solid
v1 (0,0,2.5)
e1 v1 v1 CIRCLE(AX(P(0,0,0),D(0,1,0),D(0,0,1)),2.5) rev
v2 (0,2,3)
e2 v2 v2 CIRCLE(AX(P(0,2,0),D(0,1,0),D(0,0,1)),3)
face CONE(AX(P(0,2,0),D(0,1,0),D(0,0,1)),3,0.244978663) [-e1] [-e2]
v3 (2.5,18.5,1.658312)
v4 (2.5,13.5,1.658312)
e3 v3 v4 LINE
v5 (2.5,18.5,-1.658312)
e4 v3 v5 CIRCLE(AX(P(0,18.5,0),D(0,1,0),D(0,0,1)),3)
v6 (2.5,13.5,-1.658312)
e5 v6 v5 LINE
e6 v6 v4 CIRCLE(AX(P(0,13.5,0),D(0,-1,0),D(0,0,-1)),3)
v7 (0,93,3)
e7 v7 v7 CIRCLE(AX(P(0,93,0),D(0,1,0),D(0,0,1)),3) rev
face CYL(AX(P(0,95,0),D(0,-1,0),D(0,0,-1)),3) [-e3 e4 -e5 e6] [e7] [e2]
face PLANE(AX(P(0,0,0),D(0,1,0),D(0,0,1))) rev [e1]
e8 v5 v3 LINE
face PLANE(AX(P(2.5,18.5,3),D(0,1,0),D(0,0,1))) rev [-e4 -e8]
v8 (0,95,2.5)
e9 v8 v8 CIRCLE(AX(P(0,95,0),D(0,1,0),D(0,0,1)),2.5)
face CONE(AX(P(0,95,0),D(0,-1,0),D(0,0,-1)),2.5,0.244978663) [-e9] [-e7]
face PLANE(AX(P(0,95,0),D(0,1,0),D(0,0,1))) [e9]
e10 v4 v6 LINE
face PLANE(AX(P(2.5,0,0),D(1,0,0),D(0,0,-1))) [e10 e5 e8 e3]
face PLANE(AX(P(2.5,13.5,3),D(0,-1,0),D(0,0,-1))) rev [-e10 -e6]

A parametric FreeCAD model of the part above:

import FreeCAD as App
import Part
import Sketcher
from FreeCAD import Vector
Q = App.Units.Quantity


def edges_at(feature, points):
    """Names of the edges that pass closest to the given points."""
    edges = feature.Shape.Edges
    near = lambda p: min(range(len(edges)), key=lambda i: edges[i].distToShape(Part.Vertex(*p))[0])
    return sorted({f"Edge{near(p) + 1}" for p in points})


def add_polygon(sketch, points):
    """Adds a closed chain of lines whose ends are joined by coincident constraints."""
    first, n = sketch.GeometryCount, len(points)
    for a, b in zip(points, points[1:] + points[:1]):
        sketch.addGeometry(Part.LineSegment(App.Vector(*a, 0), App.Vector(*b, 0)), False)
    for i in range(n):
        sketch.addConstraint(Sketcher.Constraint("Coincident", first + i, 2, first + (i + 1) % n, 1))

doc = App.newDocument("Part")
body = doc.addObject("PartDesign::Body", "Body")

sketch1 = doc.addObject("Sketcher::SketchObject", "Sketch")
body.addObject(sketch1)
sketch1.AttachmentSupport = (doc.XZ_Plane, [""])
sketch1.MapMode = "FlatFace"
sketch1.addGeometry(Part.Circle(Vector(0, 0, 0), Vector(0, 0, 1), 3), False)
sketch1.addConstraint([
    Sketcher.Constraint("Coincident", 0, 3, -1, 1),
    Sketcher.Constraint("Diameter", 0, Q("6 mm")),
])
pad1 = doc.addObject("PartDesign::Pad", "Pad")
body.addObject(pad1)
pad1.Profile = sketch1
pad1.Length = 95
pad1.Reversed = True
doc.recompute()

chamfer = doc.addObject("PartDesign::Chamfer", "Chamfer")
body.addObject(chamfer)
chamfer.Base = (pad1, edges_at(pad1, [(0, 0, -3)]))
chamfer.ChamferType = "Two distances"
chamfer.Size = 0.5
chamfer.Size2 = 2
chamfer.FlipDirection = True
doc.recompute()

chamfer2 = doc.addObject("PartDesign::Chamfer", "Chamfer001")
body.addObject(chamfer2)
chamfer2.Base = (chamfer, edges_at(chamfer, [(0, 95, -3)]))
chamfer2.ChamferType = "Two distances"
chamfer2.Size = 2
chamfer2.Size2 = 0.5

sketch2 = doc.addObject("Sketcher::SketchObject", "Sketch001")
body.addObject(sketch2)
sketch2.AttachmentSupport = (doc.YZ_Plane, [""])
sketch2.MapMode = "FlatFace"
sketch2.AttachmentOffset = App.Placement(Vector(0, 0, 3), App.Rotation())
add_polygon(sketch2, [(18.5, 3), (13.5, 3), (13.5, -3), (18.5, -3)])
sketch2.addConstraint([
    Sketcher.Constraint("Horizontal", 0),
    Sketcher.Constraint("Vertical", 1),
    Sketcher.Constraint("Horizontal", 2),
    Sketcher.Constraint("Vertical", 3),
    Sketcher.Constraint("DistanceX", 0, 2, 0, 1, Q("5 mm")),
    Sketcher.Constraint("DistanceY", 1, 2, 1, 1, Q("6 mm")),
    Sketcher.Constraint("DistanceY", -1, 1, 0, 2, Q("3 mm")),
    Sketcher.Constraint("DistanceX", -1, 1, 0, 2, Q("13.5 mm")),
])
pocket1 = doc.addObject("PartDesign::Pocket", "Pocket")
body.addObject(pocket1)
pocket1.Profile = sketch2
pocket1.Length = 0.5

doc.recompute()
